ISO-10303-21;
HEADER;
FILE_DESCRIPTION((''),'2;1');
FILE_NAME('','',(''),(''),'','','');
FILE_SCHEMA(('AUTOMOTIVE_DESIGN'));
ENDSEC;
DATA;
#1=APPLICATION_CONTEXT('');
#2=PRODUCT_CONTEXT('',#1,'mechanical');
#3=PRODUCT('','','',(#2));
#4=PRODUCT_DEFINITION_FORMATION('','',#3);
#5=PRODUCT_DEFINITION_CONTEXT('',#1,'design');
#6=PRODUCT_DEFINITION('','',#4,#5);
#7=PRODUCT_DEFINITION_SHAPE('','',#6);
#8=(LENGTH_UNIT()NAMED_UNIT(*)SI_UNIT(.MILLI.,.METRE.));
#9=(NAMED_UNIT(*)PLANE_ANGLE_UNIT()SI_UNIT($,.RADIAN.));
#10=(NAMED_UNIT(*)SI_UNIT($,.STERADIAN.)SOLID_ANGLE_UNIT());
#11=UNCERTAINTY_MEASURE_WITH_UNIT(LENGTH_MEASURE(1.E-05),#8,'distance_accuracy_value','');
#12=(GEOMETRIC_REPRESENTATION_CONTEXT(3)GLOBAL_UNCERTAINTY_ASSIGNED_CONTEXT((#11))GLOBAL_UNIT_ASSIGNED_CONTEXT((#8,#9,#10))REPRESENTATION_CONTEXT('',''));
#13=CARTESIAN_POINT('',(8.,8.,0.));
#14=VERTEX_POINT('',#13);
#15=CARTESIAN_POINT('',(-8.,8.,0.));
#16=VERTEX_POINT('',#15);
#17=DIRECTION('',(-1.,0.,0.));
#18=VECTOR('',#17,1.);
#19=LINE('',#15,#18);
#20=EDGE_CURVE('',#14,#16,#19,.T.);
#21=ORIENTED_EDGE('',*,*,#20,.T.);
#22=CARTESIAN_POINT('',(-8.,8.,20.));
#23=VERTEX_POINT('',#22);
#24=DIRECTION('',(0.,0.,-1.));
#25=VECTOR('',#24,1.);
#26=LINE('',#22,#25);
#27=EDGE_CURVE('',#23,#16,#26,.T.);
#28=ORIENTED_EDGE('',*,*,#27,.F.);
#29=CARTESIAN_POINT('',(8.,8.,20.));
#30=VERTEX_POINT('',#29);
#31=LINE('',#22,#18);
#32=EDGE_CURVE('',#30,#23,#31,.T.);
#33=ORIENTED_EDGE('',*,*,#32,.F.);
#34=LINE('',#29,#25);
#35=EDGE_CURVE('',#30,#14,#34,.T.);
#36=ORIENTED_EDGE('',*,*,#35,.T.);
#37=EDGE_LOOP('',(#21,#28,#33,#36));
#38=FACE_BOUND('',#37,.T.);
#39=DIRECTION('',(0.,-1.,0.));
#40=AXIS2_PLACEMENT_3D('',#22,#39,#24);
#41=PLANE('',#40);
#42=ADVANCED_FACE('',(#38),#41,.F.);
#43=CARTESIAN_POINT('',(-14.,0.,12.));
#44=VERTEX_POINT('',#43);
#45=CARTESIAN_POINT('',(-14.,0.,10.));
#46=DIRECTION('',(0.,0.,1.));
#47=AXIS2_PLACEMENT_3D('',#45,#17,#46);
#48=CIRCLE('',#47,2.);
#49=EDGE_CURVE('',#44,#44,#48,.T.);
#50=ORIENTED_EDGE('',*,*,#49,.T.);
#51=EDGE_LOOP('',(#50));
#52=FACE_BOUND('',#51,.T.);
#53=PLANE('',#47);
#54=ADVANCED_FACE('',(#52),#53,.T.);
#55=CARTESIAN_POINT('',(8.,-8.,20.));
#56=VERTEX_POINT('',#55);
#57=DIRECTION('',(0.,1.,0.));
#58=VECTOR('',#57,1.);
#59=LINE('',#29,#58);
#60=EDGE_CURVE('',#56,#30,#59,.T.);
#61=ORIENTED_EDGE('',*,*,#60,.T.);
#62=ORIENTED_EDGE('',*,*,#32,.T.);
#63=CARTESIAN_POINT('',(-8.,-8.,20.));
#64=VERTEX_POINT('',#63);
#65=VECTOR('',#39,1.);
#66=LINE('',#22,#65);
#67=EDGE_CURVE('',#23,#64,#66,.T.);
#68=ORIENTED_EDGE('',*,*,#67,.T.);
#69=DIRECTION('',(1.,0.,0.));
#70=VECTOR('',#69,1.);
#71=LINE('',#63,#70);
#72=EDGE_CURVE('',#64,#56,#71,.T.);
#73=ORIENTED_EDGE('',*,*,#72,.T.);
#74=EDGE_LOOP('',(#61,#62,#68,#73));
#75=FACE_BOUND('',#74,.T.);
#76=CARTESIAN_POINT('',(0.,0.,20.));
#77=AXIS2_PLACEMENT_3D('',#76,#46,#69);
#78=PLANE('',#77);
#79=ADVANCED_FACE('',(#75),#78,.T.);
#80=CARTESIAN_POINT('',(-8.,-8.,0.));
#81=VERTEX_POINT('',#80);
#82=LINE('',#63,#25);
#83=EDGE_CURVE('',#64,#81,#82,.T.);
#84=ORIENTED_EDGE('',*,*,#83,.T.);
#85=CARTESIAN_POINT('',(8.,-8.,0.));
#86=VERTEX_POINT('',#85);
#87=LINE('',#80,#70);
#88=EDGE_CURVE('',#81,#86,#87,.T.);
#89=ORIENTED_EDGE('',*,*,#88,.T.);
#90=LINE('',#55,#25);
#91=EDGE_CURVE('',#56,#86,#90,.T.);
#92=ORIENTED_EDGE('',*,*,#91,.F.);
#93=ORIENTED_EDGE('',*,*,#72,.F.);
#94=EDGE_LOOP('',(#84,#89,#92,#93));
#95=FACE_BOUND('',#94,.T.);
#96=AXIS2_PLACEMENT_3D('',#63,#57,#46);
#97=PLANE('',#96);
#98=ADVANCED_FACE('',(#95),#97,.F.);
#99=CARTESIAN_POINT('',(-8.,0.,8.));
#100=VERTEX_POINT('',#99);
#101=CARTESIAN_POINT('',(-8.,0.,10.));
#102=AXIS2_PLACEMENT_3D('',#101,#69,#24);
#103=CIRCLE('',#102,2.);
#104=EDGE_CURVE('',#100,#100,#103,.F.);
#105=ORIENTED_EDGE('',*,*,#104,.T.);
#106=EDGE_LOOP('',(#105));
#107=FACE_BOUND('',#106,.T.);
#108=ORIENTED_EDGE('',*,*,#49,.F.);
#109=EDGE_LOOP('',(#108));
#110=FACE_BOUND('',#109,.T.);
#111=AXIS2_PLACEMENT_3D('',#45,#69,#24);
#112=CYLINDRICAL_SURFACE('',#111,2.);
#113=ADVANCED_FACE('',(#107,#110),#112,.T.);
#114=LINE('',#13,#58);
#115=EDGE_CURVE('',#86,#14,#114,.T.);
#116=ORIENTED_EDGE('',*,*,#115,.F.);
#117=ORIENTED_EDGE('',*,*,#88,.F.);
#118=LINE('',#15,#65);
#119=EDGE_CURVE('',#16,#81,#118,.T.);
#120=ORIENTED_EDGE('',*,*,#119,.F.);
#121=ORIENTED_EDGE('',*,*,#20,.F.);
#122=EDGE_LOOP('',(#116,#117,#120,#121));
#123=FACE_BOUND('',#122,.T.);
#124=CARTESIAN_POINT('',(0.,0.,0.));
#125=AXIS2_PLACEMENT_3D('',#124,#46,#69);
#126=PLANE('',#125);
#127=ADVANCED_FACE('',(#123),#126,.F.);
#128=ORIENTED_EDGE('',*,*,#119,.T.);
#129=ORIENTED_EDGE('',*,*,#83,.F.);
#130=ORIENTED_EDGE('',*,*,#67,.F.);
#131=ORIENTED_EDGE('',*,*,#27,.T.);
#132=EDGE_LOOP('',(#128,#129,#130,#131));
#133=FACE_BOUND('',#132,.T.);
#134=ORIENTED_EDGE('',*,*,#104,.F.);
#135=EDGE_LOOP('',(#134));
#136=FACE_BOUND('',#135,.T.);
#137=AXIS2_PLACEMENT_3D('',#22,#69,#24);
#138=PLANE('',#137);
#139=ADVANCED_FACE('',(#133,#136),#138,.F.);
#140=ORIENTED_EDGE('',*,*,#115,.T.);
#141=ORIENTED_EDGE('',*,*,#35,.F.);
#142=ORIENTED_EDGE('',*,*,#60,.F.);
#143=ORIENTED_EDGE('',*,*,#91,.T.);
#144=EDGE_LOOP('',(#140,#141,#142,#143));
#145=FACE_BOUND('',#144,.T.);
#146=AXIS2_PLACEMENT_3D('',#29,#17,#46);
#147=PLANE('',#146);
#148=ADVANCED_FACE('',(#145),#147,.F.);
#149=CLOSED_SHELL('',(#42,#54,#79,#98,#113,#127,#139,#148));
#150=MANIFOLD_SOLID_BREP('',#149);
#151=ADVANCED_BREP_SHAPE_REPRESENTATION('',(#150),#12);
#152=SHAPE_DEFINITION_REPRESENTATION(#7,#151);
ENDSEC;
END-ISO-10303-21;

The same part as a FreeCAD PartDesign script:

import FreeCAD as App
import Part
import Sketcher
from FreeCAD import Vector


def add_polygon(sketch, points):
    """Adds a closed chain of lines whose ends are joined by coincident constraints."""
    first, n = sketch.GeometryCount, len(points)
    for a, b in zip(points, points[1:] + points[:1]):
        sketch.addGeometry(Part.LineSegment(App.Vector(*a, 0), App.Vector(*b, 0)), False)
    for i in range(n):
        sketch.addConstraint(Sketcher.Constraint("Coincident", first + i, 2, first + (i + 1) % n, 1))

doc = App.newDocument("Part")
body = doc.addObject("PartDesign::Body", "Body")

# Sketch on XY plane
sketch1 = doc.addObject("Sketcher::SketchObject", "Sketch")
body.addObject(sketch1)
sketch1.AttachmentSupport = (doc.XY_Plane, [""])
sketch1.MapMode = "FlatFace"
add_polygon(sketch1, [(-8, 8), (-8, -8), (8, -8), (8, 8)])  # lines 0-3
sketch1.addConstraint([
    Sketcher.Constraint("Vertical", 0),
    Sketcher.Constraint("Horizontal", 1),
    Sketcher.Constraint("Vertical", 2),
    Sketcher.Constraint("Horizontal", 3),
    Sketcher.Constraint("Symmetric", 0, 2, 2, 2, -1, 1),
    Sketcher.Constraint("Equal", 3, 0),
    Sketcher.Constraint("DistanceX", 1, 1, 1, 2, 16.0),
])
pad1 = doc.addObject("PartDesign::Pad", "Pad")
body.addObject(pad1)
pad1.Profile = sketch1
pad1.Length = 20

# Sketch on YZ plane
sketch2 = doc.addObject("Sketcher::SketchObject", "Sketch001")
body.addObject(sketch2)
sketch2.AttachmentSupport = (doc.YZ_Plane, [""])
sketch2.MapMode = "FlatFace"
sketch2.AttachmentOffset = App.Placement(Vector(0, 0, -8), App.Rotation())
sketch2.addGeometry(Part.Circle(Vector(0, 10, 0), Vector(0, 0, 1), 2), False)
sketch2.addConstraint([
    Sketcher.Constraint("PointOnObject", 0, 3, -2),
    Sketcher.Constraint("Diameter", 0, 4.0),
    Sketcher.Constraint("DistanceY", -1, 1, 0, 3, 10.0),
])
pad2 = doc.addObject("PartDesign::Pad", "Pad001")
body.addObject(pad2)
pad2.Profile = sketch2
pad2.Length = 6
pad2.Reversed = True

doc.recompute()
